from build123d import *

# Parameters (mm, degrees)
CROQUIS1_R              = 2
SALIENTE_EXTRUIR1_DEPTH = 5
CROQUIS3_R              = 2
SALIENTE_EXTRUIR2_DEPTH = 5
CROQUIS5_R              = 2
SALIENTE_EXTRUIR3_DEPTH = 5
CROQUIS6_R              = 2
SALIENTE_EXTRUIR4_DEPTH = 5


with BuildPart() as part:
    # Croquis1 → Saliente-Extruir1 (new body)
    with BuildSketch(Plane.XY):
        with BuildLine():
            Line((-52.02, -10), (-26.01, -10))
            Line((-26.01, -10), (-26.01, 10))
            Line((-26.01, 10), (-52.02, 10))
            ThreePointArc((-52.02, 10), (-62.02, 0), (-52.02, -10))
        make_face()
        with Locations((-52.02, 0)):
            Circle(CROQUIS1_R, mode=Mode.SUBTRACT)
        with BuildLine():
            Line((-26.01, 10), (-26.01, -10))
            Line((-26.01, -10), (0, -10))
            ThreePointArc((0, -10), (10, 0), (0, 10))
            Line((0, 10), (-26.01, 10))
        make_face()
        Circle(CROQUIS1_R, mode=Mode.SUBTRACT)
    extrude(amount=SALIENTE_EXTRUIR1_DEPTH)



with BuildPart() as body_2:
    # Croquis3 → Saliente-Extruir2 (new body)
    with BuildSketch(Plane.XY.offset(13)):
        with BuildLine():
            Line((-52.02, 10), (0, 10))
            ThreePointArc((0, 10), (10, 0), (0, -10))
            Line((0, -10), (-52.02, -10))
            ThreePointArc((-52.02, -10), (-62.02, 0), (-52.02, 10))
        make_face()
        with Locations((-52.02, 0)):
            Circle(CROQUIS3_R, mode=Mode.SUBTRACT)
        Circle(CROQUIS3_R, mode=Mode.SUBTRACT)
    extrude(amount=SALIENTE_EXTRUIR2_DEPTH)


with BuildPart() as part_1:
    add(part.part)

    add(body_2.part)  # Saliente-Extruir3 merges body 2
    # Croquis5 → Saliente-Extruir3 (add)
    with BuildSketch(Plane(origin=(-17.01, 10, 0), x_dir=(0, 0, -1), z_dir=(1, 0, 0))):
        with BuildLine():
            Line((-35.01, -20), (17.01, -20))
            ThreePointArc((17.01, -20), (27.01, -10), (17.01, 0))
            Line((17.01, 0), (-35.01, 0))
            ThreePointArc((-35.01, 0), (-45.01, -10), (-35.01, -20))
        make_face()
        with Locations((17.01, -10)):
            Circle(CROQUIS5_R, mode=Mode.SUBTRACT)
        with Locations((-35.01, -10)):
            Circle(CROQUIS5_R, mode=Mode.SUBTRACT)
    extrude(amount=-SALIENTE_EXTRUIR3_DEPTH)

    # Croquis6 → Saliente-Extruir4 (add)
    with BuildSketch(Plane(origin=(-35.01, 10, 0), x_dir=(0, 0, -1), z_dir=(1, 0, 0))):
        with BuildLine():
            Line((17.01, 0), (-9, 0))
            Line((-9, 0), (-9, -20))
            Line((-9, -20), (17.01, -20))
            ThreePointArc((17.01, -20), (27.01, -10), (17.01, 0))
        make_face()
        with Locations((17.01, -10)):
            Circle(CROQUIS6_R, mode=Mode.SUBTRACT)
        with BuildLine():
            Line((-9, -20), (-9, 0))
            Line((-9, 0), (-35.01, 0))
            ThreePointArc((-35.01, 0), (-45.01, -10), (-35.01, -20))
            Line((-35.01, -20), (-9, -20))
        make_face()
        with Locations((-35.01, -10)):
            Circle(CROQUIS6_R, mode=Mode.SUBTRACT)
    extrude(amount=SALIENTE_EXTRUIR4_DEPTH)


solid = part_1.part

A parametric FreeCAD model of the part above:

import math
import FreeCAD as App
import Part
import Sketcher

V = App.Vector
Q = App.Units.Quantity

doc = App.newDocument("Part")
params = doc.addObject("Spreadsheet::Sheet", "Params")
for row, (alias, value) in enumerate([
    ("sketch1_diameter", "4 mm"),
    ("sketch1_radius", "10 mm"),
    ("sketch1_width", "52.02 mm"),
    ("pad1_length", "5 mm"),
    ("sketch2_diameter", "4 mm"),
    ("sketch2_radius", "10 mm"),
    ("sketch2_width", "52.02 mm"),
    ("pad2_length", "5 mm"),
    ("sketch3_diameter", "4 mm"),
    ("sketch3_radius", "10 mm"),
    ("sketch3_height", "52.02 mm"),
    ("pad3_length", "5 mm"),
    ("sketch4_diameter", "4 mm"),
    ("sketch4_radius", "10 mm"),
    ("sketch4_height", "52.02 mm"),
    ("pad4_length", "5 mm"),
], start=1):
    params.set(f"A{row}", alias)
    params.set(f"B{row}", "=" + value)
    params.setAlias(f"B{row}", alias)

body = doc.addObject("PartDesign::Body", "Body")

sketch1 = doc.addObject("Sketcher::SketchObject", "Sketch")
body.addObject(sketch1)
sketch1.AttachmentSupport = (doc.XY_Plane, [""])
sketch1.MapMode = "FlatFace"
sketch1.addGeometry(Part.LineSegment(V(-52, -10, 0), V(0, -10, 0)), False)
sketch1.addGeometry(Part.ArcOfCircle(Part.Circle(V(0, 0, 0), V(0, 0, 1), 10), math.radians(-90), math.radians(90)), False)
sketch1.addGeometry(Part.LineSegment(V(0, 10, 0), V(-52, 10, 0)), False)
sketch1.addGeometry(Part.ArcOfCircle(Part.Circle(V(-52, 0, 0), V(0, 0, 1), 10), math.radians(90), math.radians(270)), False)
sketch1.addGeometry(Part.Circle(V(-52, 0, 0), V(0, 0, 1), 2), False)
sketch1.addGeometry(Part.Circle(V(0, 0, 0), V(0, 0, 1), 2), False)
sketch1.addConstraint(Sketcher.Constraint("Tangent", 0, 2, 1, 1))
sketch1.addConstraint(Sketcher.Constraint("Tangent", 1, 2, 2, 1))
sketch1.addConstraint(Sketcher.Constraint("Tangent", 2, 2, 3, 1))
sketch1.addConstraint(Sketcher.Constraint("Tangent", 3, 2, 0, 1))
sketch1.addConstraint(Sketcher.Constraint("Horizontal", 0))
sketch1.addConstraint(Sketcher.Constraint("Horizontal", 2))
sketch1.addConstraint(Sketcher.Constraint("Coincident", 1, 3, -1, 1))
sketch1.addConstraint(Sketcher.Constraint("Coincident", 5, 3, -1, 1))
sketch1.addConstraint(Sketcher.Constraint("Coincident", 4, 3, 3, 3))
sketch1.addConstraint(Sketcher.Constraint("Equal", 4, 5))
sketch1.addConstraint(Sketcher.Constraint("Diameter", 4, Q("4 mm")))
sketch1.addConstraint(Sketcher.Constraint("Radius", 1, Q("10 mm")))
sketch1.addConstraint(Sketcher.Constraint("DistanceX", 0, 1, 0, 2, Q("52.02 mm")))
sketch1.setExpression("Constraints[10]", "Params.sketch1_diameter")
sketch1.setExpression("Constraints[11]", "Params.sketch1_radius")
sketch1.setExpression("Constraints[12]", "Params.sketch1_width")
pad1 = doc.addObject("PartDesign::Pad", "Pad")
body.addObject(pad1)
pad1.Profile = sketch1
pad1.setExpression("Length", "Params.pad1_length")
body2 = doc.addObject("PartDesign::Body", "Body001")

sketch2 = doc.addObject("Sketcher::SketchObject", "Sketch001")
body2.addObject(sketch2)
sketch2.AttachmentSupport = (doc.getObject("XY_Plane001"), [""])
sketch2.MapMode = "FlatFace"
sketch2.AttachmentOffset = App.Placement(V(0, 0, 13), App.Rotation())
sketch2.addGeometry(Part.LineSegment(V(0, 10, 0), V(-52, 10, 0)), False)
sketch2.addGeometry(Part.ArcOfCircle(Part.Circle(V(-52, 0, 0), V(0, 0, 1), 10), math.radians(90), math.radians(270)), False)
sketch2.addGeometry(Part.LineSegment(V(-52, -10, 0), V(0, -10, 0)), False)
sketch2.addGeometry(Part.ArcOfCircle(Part.Circle(V(0, 0, 0), V(0, 0, 1), 10), math.radians(-90), math.radians(90)), False)
sketch2.addGeometry(Part.Circle(V(0, 0, 0), V(0, 0, 1), 2), False)
sketch2.addGeometry(Part.Circle(V(-52, 0, 0), V(0, 0, 1), 2), False)
sketch2.addConstraint(Sketcher.Constraint("Tangent", 0, 2, 1, 1))
sketch2.addConstraint(Sketcher.Constraint("Tangent", 1, 2, 2, 1))
sketch2.addConstraint(Sketcher.Constraint("Tangent", 2, 2, 3, 1))
sketch2.addConstraint(Sketcher.Constraint("Tangent", 3, 2, 0, 1))
sketch2.addConstraint(Sketcher.Constraint("Horizontal", 0))
sketch2.addConstraint(Sketcher.Constraint("Horizontal", 2))
sketch2.addConstraint(Sketcher.Constraint("Coincident", 3, 3, -1, 1))
sketch2.addConstraint(Sketcher.Constraint("Coincident", 4, 3, -1, 1))
sketch2.addConstraint(Sketcher.Constraint("Coincident", 5, 3, 1, 3))
sketch2.addConstraint(Sketcher.Constraint("Equal", 4, 5))
sketch2.addConstraint(Sketcher.Constraint("Diameter", 4, Q("4 mm")))
sketch2.addConstraint(Sketcher.Constraint("Radius", 1, Q("10 mm")))
sketch2.addConstraint(Sketcher.Constraint("DistanceX", 0, 2, 0, 1, Q("52.02 mm")))
sketch2.setExpression("Constraints[10]", "Params.sketch2_diameter")
sketch2.setExpression("Constraints[11]", "Params.sketch2_radius")
sketch2.setExpression("Constraints[12]", "Params.sketch2_width")
pad2 = doc.addObject("PartDesign::Pad", "Pad001")
body2.addObject(pad2)
pad2.Profile = sketch2
pad2.setExpression("Length", "Params.pad2_length")
body.AllowCompound = True
doc.recompute()

boolean = doc.addObject("PartDesign::Boolean", "Boolean")
body.addObject(boolean)
boolean.Type = "Fuse"
boolean.addObjects([body2])

sketch3 = doc.addObject("Sketcher::SketchObject", "Sketch002")
body.addObject(sketch3)
sketch3.AttachmentSupport = (doc.YZ_Plane, [""])
sketch3.MapMode = "FlatFace"
sketch3.AttachmentOffset = App.Placement(V(0, 0, -17.01), App.Rotation())
sketch3.addGeometry(Part.LineSegment(V(-10, 35, 0), V(-10, -17, 0)), False)
sketch3.addGeometry(Part.ArcOfCircle(Part.Circle(V(0, -17, 0), V(0, 0, 1), 10), math.radians(180), math.radians(360)), False)
sketch3.addGeometry(Part.LineSegment(V(10, -17, 0), V(10, 35, 0)), False)
sketch3.addGeometry(Part.ArcOfCircle(Part.Circle(V(0, 35, 0), V(0, 0, 1), 10), math.radians(0), math.radians(180)), False)
sketch3.addGeometry(Part.Circle(V(0, 35, 0), V(0, 0, 1), 2), False)
sketch3.addGeometry(Part.Circle(V(0, -17, 0), V(0, 0, 1), 2), False)
sketch3.addConstraint(Sketcher.Constraint("Tangent", 0, 2, 1, 1))
sketch3.addConstraint(Sketcher.Constraint("Tangent", 1, 2, 2, 1))
sketch3.addConstraint(Sketcher.Constraint("Tangent", 2, 2, 3, 1))
sketch3.addConstraint(Sketcher.Constraint("Tangent", 3, 2, 0, 1))
sketch3.addConstraint(Sketcher.Constraint("Vertical", 0))
sketch3.addConstraint(Sketcher.Constraint("Vertical", 2))
sketch3.addConstraint(Sketcher.Constraint("Coincident", 4, 3, 3, 3))
sketch3.addConstraint(Sketcher.Constraint("Coincident", 5, 3, 1, 3))
sketch3.addConstraint(Sketcher.Constraint("Equal", 4, 5))
sketch3.addConstraint(Sketcher.Constraint("PointOnObject", 1, 3, -2))
sketch3.addConstraint(Sketcher.Constraint("Diameter", 4, Q("4 mm")))
sketch3.addConstraint(Sketcher.Constraint("Radius", 1, Q("10 mm")))
sketch3.addConstraint(Sketcher.Constraint("DistanceY", 0, 2, 0, 1, Q("52.02 mm")))
sketch3.addConstraint(Sketcher.Constraint("DistanceY", 1, 3, -1, 1, Q("17.01 mm")))
sketch3.setExpression("Constraints[10]", "Params.sketch3_diameter")
sketch3.setExpression("Constraints[11]", "Params.sketch3_radius")
sketch3.setExpression("Constraints[12]", "Params.sketch3_height")
pad3 = doc.addObject("PartDesign::Pad", "Pad002")
body.addObject(pad3)
pad3.Profile = sketch3
pad3.setExpression("Length", "Params.pad3_length")
pad3.Reversed = True

sketch4 = doc.addObject("Sketcher::SketchObject", "Sketch003")
body.addObject(sketch4)
sketch4.AttachmentSupport = (doc.YZ_Plane, [""])
sketch4.MapMode = "FlatFace"
sketch4.AttachmentOffset = App.Placement(V(0, 0, -35.01), App.Rotation())
sketch4.addGeometry(Part.LineSegment(V(10, -17, 0), V(10, 35, 0)), False)
sketch4.addGeometry(Part.ArcOfCircle(Part.Circle(V(0, 35, 0), V(0, 0, 1), 10), math.radians(0), math.radians(180)), False)
sketch4.addGeometry(Part.LineSegment(V(-10, 35, 0), V(-10, -17, 0)), False)
sketch4.addGeometry(Part.ArcOfCircle(Part.Circle(V(0, -17, 0), V(0, 0, 1), 10), math.radians(180), math.radians(360)), False)
sketch4.addGeometry(Part.Circle(V(0, 35, 0), V(0, 0, 1), 2), False)
sketch4.addGeometry(Part.Circle(V(0, -17, 0), V(0, 0, 1), 2), False)
sketch4.addConstraint(Sketcher.Constraint("Tangent", 0, 2, 1, 1))
sketch4.addConstraint(Sketcher.Constraint("Tangent", 1, 2, 2, 1))
sketch4.addConstraint(Sketcher.Constraint("Tangent", 2, 2, 3, 1))
sketch4.addConstraint(Sketcher.Constraint("Tangent", 3, 2, 0, 1))
sketch4.addConstraint(Sketcher.Constraint("Vertical", 0))
sketch4.addConstraint(Sketcher.Constraint("Vertical", 2))
sketch4.addConstraint(Sketcher.Constraint("Coincident", 4, 3, 1, 3))
sketch4.addConstraint(Sketcher.Constraint("Coincident", 5, 3, 3, 3))
sketch4.addConstraint(Sketcher.Constraint("Equal", 4, 5))
sketch4.addConstraint(Sketcher.Constraint("PointOnObject", 1, 3, -2))
sketch4.addConstraint(Sketcher.Constraint("Diameter", 4, Q("4 mm")))
sketch4.addConstraint(Sketcher.Constraint("Radius", 1, Q("10 mm")))
sketch4.addConstraint(Sketcher.Constraint("DistanceY", 0, 1, 0, 2, Q("52.02 mm")))
sketch4.addConstraint(Sketcher.Constraint("DistanceY", -1, 1, 1, 3, Q("35.01 mm")))
sketch4.setExpression("Constraints[10]", "Params.sketch4_diameter")
sketch4.setExpression("Constraints[11]", "Params.sketch4_radius")
sketch4.setExpression("Constraints[12]", "Params.sketch4_height")
pad4 = doc.addObject("PartDesign::Pad", "Pad003")
body.addObject(pad4)
pad4.Profile = sketch4
pad4.setExpression("Length", "Params.pad4_length")

doc.recompute()
